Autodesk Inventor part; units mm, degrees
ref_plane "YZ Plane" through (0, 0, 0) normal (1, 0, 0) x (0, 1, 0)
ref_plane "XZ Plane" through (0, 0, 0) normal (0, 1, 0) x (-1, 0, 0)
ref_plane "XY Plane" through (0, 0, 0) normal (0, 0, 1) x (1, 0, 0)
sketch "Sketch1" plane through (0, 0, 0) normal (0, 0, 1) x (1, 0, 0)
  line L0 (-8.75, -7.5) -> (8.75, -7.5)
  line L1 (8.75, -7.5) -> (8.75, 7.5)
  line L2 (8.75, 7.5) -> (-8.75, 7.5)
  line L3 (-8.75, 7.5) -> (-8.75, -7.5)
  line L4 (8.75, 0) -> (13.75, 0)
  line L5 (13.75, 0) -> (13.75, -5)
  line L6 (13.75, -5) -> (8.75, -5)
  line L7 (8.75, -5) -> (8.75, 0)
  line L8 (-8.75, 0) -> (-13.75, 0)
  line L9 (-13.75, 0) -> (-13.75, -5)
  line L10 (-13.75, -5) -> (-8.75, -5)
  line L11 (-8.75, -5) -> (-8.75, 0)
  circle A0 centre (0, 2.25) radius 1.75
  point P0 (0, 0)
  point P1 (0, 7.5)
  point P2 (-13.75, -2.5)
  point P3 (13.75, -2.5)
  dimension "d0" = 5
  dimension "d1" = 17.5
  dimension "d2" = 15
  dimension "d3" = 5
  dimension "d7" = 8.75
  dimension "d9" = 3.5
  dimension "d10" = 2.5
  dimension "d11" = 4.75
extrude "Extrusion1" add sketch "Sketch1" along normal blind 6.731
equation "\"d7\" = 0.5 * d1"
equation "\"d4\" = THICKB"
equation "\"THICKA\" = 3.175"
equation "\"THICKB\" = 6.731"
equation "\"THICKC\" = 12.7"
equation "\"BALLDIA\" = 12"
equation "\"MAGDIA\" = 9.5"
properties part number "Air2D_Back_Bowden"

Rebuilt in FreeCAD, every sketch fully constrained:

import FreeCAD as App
import Part
import Sketcher
from FreeCAD import Vector
Q = App.Units.Quantity

doc = App.newDocument("Part")
body = doc.addObject("PartDesign::Body", "Body")

sketch1 = body.newObject("Sketcher::SketchObject", "Sketch")
sketch1.AttachmentSupport = (doc.getObject("XY_Plane"), [""])
sketch1.MapMode = "FlatFace"
sketch1.addGeometry(Part.LineSegment(Vector(-8.75, -5, 0), Vector(-8.75, -7.5, 0)), False)
sketch1.addGeometry(Part.LineSegment(Vector(-8.75, -7.5, 0), Vector(8.75, -7.5, 0)), False)
sketch1.addGeometry(Part.LineSegment(Vector(8.75, -7.5, 0), Vector(8.75, -5, 0)), False)
sketch1.addGeometry(Part.LineSegment(Vector(8.75, -5, 0), Vector(13.75, -5, 0)), False)
sketch1.addGeometry(Part.LineSegment(Vector(13.75, -5, 0), Vector(13.75, 0, 0)), False)
sketch1.addGeometry(Part.LineSegment(Vector(13.75, 0, 0), Vector(8.75, 0, 0)), False)
sketch1.addGeometry(Part.LineSegment(Vector(8.75, 0, 0), Vector(8.75, 7.5, 0)), False)
sketch1.addGeometry(Part.LineSegment(Vector(8.75, 7.5, 0), Vector(-8.75, 7.5, 0)), False)
sketch1.addGeometry(Part.LineSegment(Vector(-8.75, 7.5, 0), Vector(-8.75, 0, 0)), False)
sketch1.addGeometry(Part.LineSegment(Vector(-8.75, 0, 0), Vector(-13.75, 0, 0)), False)
sketch1.addGeometry(Part.LineSegment(Vector(-13.75, 0, 0), Vector(-13.75, -5, 0)), False)
sketch1.addGeometry(Part.LineSegment(Vector(-13.75, -5, 0), Vector(-8.75, -5, 0)), False)
sketch1.addGeometry(Part.Circle(Vector(0, 2.25, 0), Vector(0, 0, 1), 1.75), False)
sketch1.addConstraint(Sketcher.Constraint("Coincident", 0, 2, 1, 1))
sketch1.addConstraint(Sketcher.Constraint("Coincident", 1, 2, 2, 1))
sketch1.addConstraint(Sketcher.Constraint("Coincident", 2, 2, 3, 1))
sketch1.addConstraint(Sketcher.Constraint("Coincident", 3, 2, 4, 1))
sketch1.addConstraint(Sketcher.Constraint("Coincident", 4, 2, 5, 1))
sketch1.addConstraint(Sketcher.Constraint("Coincident", 5, 2, 6, 1))
sketch1.addConstraint(Sketcher.Constraint("Coincident", 6, 2, 7, 1))
sketch1.addConstraint(Sketcher.Constraint("Coincident", 7, 2, 8, 1))
sketch1.addConstraint(Sketcher.Constraint("Coincident", 8, 2, 9, 1))
sketch1.addConstraint(Sketcher.Constraint("Coincident", 9, 2, 10, 1))
sketch1.addConstraint(Sketcher.Constraint("Coincident", 10, 2, 11, 1))
sketch1.addConstraint(Sketcher.Constraint("Coincident", 11, 2, 0, 1))
sketch1.addConstraint(Sketcher.Constraint("Vertical", 0))
sketch1.addConstraint(Sketcher.Constraint("Horizontal", 1))
sketch1.addConstraint(Sketcher.Constraint("Vertical", 2))
sketch1.addConstraint(Sketcher.Constraint("Horizontal", 3))
sketch1.addConstraint(Sketcher.Constraint("Vertical", 4))
sketch1.addConstraint(Sketcher.Constraint("Horizontal", 5))
sketch1.addConstraint(Sketcher.Constraint("Vertical", 6))
sketch1.addConstraint(Sketcher.Constraint("Horizontal", 7))
sketch1.addConstraint(Sketcher.Constraint("Vertical", 8))
sketch1.addConstraint(Sketcher.Constraint("Horizontal", 9))
sketch1.addConstraint(Sketcher.Constraint("Vertical", 10))
sketch1.addConstraint(Sketcher.Constraint("Horizontal", 11))
sketch1.addConstraint(Sketcher.Constraint("Symmetric", 0, 2, 6, 2, -1, 1))
sketch1.addConstraint(Sketcher.Constraint("Symmetric", 5, 2, 8, 2, -1, 1))
sketch1.addConstraint(Sketcher.Constraint("Symmetric", 4, 2, 9, 2, -2))
sketch1.addConstraint(Sketcher.Constraint("Symmetric", 2, 2, 11, 2, -2))
sketch1.addConstraint(Sketcher.Constraint("PointOnObject", 12, 3, -2))
sketch1.addConstraint(Sketcher.Constraint("Equal", 11, 4))
sketch1.addConstraint(Sketcher.Constraint("Diameter", 12, Q("3.5 mm")))
sketch1.addConstraint(Sketcher.Constraint("DistanceX", 3, 1, 3, 2, Q("5 mm")))
sketch1.addConstraint(Sketcher.Constraint("DistanceX", 1, 1, 1, 2, Q("17.5 mm")))
sketch1.addConstraint(Sketcher.Constraint("DistanceY", 0, 2, 0, 1, Q("2.5 mm")))
sketch1.addConstraint(Sketcher.Constraint("DistanceY", -1, 1, 12, 3, Q("2.25 mm")))
pad1 = body.newObject("PartDesign::Pad", "Pad")
pad1.Profile = sketch1
pad1.Length = 6.731

doc.recompute()
